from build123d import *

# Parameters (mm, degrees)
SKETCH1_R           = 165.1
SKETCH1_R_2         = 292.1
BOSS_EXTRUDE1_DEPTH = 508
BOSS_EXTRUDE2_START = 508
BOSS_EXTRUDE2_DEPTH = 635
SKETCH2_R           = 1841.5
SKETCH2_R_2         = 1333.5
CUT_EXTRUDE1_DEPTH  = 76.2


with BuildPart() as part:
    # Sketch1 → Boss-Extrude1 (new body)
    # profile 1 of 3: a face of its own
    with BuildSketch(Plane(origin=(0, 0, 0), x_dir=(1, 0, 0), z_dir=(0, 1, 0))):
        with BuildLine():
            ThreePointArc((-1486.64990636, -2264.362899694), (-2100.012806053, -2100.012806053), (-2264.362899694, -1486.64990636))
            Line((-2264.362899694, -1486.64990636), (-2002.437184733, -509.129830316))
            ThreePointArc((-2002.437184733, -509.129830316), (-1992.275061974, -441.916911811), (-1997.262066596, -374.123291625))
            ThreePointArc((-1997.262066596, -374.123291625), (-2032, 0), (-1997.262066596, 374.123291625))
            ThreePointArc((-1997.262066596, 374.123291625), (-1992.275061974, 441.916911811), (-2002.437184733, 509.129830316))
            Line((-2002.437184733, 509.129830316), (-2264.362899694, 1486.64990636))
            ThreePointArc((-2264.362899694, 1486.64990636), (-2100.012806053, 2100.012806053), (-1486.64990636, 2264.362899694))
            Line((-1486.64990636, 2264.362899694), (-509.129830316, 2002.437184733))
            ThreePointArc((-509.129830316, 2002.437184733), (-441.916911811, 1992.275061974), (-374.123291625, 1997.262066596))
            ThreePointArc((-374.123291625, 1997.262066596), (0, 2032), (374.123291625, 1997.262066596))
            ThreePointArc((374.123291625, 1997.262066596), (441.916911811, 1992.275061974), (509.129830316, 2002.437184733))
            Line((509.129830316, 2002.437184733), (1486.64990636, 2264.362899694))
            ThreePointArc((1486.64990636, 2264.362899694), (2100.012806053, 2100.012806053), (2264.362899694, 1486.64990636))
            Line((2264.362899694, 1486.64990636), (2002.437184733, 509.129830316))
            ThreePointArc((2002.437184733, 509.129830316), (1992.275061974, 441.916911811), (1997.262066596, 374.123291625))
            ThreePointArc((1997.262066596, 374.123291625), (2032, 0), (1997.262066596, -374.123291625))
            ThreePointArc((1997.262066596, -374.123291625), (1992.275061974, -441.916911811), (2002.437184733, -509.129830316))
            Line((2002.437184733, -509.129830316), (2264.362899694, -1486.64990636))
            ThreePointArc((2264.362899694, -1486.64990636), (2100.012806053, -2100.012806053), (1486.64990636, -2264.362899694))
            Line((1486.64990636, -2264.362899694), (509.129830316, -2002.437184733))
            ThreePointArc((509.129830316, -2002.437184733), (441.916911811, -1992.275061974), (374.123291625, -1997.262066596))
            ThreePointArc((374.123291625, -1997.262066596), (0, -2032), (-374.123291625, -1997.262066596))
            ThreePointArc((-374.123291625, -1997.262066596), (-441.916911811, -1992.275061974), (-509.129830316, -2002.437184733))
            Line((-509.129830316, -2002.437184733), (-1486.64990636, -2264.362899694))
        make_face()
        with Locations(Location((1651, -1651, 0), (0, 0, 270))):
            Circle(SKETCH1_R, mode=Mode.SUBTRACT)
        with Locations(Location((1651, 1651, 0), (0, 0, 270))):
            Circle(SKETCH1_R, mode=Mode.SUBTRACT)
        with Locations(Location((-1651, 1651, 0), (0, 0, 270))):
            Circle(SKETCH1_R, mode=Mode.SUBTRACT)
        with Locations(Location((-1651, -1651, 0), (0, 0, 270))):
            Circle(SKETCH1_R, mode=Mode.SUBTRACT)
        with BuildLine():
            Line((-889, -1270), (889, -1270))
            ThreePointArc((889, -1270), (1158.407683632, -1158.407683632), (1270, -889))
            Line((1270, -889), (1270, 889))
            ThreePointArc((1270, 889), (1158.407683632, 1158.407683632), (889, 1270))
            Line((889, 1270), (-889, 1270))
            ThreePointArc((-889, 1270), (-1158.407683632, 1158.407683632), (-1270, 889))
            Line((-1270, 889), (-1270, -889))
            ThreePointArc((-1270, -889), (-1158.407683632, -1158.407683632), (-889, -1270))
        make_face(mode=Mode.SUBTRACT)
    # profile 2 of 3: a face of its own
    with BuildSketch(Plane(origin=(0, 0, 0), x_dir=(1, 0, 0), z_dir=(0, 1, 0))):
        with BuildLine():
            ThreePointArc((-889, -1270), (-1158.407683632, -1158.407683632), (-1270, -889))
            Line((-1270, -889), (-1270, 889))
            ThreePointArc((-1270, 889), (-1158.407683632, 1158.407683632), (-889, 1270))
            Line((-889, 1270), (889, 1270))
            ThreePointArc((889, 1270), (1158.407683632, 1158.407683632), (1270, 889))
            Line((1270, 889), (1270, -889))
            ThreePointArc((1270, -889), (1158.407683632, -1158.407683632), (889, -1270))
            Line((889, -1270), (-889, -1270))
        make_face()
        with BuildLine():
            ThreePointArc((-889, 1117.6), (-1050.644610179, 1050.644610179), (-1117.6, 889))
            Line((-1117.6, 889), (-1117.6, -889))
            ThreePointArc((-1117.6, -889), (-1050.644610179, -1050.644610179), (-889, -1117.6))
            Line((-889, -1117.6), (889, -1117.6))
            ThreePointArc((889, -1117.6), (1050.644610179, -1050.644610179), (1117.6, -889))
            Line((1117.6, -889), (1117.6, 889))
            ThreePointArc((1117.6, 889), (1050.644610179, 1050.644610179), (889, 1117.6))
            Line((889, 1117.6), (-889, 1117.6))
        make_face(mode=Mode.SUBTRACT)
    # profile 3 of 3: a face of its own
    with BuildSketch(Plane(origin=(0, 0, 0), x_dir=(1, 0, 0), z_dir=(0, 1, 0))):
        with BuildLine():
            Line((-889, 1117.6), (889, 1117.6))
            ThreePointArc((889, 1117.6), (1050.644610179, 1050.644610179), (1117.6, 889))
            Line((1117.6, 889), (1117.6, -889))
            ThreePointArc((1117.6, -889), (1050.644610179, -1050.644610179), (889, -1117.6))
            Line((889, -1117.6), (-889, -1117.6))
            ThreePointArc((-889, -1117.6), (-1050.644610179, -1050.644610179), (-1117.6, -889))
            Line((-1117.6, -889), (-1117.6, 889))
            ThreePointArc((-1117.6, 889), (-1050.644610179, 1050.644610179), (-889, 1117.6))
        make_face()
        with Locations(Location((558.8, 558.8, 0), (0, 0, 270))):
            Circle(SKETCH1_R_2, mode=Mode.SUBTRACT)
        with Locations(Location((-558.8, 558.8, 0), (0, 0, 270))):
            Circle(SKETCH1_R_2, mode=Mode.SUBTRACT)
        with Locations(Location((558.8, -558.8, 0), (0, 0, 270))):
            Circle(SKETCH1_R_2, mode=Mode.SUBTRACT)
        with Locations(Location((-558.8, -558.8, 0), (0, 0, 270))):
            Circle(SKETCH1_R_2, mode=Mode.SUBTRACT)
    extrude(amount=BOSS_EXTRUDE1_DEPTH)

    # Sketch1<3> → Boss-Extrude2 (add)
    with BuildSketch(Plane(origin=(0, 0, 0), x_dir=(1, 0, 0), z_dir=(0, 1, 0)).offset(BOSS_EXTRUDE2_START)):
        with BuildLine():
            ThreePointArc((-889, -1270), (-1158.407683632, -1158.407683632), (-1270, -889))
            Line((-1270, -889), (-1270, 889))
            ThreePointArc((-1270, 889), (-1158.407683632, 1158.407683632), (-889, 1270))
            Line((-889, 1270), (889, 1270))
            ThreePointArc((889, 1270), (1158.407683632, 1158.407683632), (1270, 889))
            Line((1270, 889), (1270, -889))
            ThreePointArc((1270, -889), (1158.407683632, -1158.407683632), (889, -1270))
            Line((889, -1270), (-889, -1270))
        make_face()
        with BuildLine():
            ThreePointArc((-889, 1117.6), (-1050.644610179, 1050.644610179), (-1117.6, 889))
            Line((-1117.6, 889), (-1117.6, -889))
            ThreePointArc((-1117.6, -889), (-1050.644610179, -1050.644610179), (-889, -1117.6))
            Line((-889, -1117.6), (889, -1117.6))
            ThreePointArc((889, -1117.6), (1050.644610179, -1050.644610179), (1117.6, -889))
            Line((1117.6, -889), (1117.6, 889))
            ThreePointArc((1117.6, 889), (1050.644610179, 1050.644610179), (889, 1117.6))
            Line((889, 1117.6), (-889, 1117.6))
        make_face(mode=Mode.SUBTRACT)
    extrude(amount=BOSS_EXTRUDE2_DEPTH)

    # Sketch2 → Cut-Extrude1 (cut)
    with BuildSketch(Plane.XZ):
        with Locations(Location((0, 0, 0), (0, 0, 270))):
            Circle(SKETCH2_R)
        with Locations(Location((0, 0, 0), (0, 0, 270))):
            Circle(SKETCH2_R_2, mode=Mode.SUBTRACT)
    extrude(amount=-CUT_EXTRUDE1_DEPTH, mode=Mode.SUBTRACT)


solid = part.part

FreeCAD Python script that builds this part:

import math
import FreeCAD as App
import Part
import Sketcher
from FreeCAD import Vector
Q = App.Units.Quantity

doc = App.newDocument("Part")
body = doc.addObject("PartDesign::Body", "Body")

# Sketch on XZ plane
sketch1 = doc.addObject("Sketcher::SketchObject", "Sketch")
body.addObject(sketch1)
sketch1.AttachmentSupport = (doc.XZ_Plane, [""])
sketch1.MapMode = "FlatFace"
sketch1.addGeometry([
    Part.ArcOfCircle(Part.Circle(Vector(-1651, 1651, 0), Vector(0, 0, 1), 635), math.radians(75), math.radians(195)),  # 0
    Part.LineSegment(Vector(-1486.649906, 2264.3629, 0), Vector(-509.12983, 2002.437185, 0)),  # 1
    Part.ArcOfCircle(Part.Circle(Vector(-430.241785, 2296.851377, 0), Vector(0, 0, 1), 304.8), math.radians(-105), math.radians(-79.390414)),  # 2
    Part.ArcOfCircle(Part.Circle(Vector(0, 0, 0), Vector(0, 0, 1), 2032), math.radians(79.390414), math.radians(100.609586)),  # 3
    Part.ArcOfCircle(Part.Circle(Vector(430.241785, 2296.851377, 0), Vector(0, 0, 1), 304.8), math.radians(-100.609586), math.radians(-75)),  # 4
    Part.LineSegment(Vector(509.12983, 2002.437185, 0), Vector(1486.649906, 2264.3629, 0)),  # 5
    Part.ArcOfCircle(Part.Circle(Vector(1651, 1651, 0), Vector(0, 0, 1), 635), math.radians(-15), math.radians(105)),  # 6
    Part.LineSegment(Vector(2264.3629, 1486.649906, 0), Vector(2002.437185, 509.12983, 0)),  # 7
    Part.ArcOfCircle(Part.Circle(Vector(2296.851377, 430.241785, 0), Vector(0, 0, 1), 304.8), math.radians(165), math.radians(190.609586)),  # 8
    Part.ArcOfCircle(Part.Circle(Vector(0, 0, 0), Vector(0, 0, 1), 2032), math.radians(-10.609586), math.radians(10.609586)),  # 9
    Part.ArcOfCircle(Part.Circle(Vector(2296.851377, -430.241785, 0), Vector(0, 0, 1), 304.8), math.radians(169.390414), math.radians(195)),  # 10
    Part.LineSegment(Vector(2002.437185, -509.12983, 0), Vector(2264.3629, -1486.649906, 0)),  # 11
    Part.ArcOfCircle(Part.Circle(Vector(1651, -1651, 0), Vector(0, 0, 1), 635), math.radians(-105), math.radians(15)),  # 12
    Part.LineSegment(Vector(1486.649906, -2264.3629, 0), Vector(509.12983, -2002.437185, 0)),  # 13
    Part.ArcOfCircle(Part.Circle(Vector(430.241785, -2296.851377, 0), Vector(0, 0, 1), 304.8), math.radians(75), math.radians(100.609586)),  # 14
    Part.ArcOfCircle(Part.Circle(Vector(0, 0, 0), Vector(0, 0, 1), 2032), math.radians(-100.609586), math.radians(-79.390414)),  # 15
    Part.ArcOfCircle(Part.Circle(Vector(-430.241785, -2296.851377, 0), Vector(0, 0, 1), 304.8), math.radians(79.390414), math.radians(105)),  # 16
    Part.LineSegment(Vector(-509.12983, -2002.437185, 0), Vector(-1486.649906, -2264.3629, 0)),  # 17
    Part.ArcOfCircle(Part.Circle(Vector(-1651, -1651, 0), Vector(0, 0, 1), 635), math.radians(165), math.radians(285)),  # 18
    Part.LineSegment(Vector(-2264.3629, -1486.649906, 0), Vector(-2002.437185, -509.12983, 0)),  # 19
    Part.ArcOfCircle(Part.Circle(Vector(-2296.851377, -430.241785, 0), Vector(0, 0, 1), 304.8), math.radians(-15), math.radians(10.609586)),  # 20
    Part.ArcOfCircle(Part.Circle(Vector(0, 0, 0), Vector(0, 0, 1), 2032), math.radians(169.390414), math.radians(190.609586)),  # 21
    Part.ArcOfCircle(Part.Circle(Vector(-2296.851377, 430.241785, 0), Vector(0, 0, 1), 304.8), math.radians(-10.609586), math.radians(15)),  # 22
    Part.LineSegment(Vector(-2002.437185, 509.12983, 0), Vector(-2264.3629, 1486.649906, 0)),  # 23
    Part.Circle(Vector(1651, 1651, 0), Vector(0, 0, 1), 165.1),  # 24
    Part.Circle(Vector(-1651, 1651, 0), Vector(0, 0, 1), 165.1),  # 25
    Part.Circle(Vector(1651, -1651, 0), Vector(0, 0, 1), 165.1),  # 26
    Part.Circle(Vector(-1651, -1651, 0), Vector(0, 0, 1), 165.1),  # 27
    Part.Circle(Vector(558.8, -558.8, 0), Vector(0, 0, 1), 292.1),  # 28
    Part.Circle(Vector(-558.8, -558.8, 0), Vector(0, 0, 1), 292.1),  # 29
    Part.Circle(Vector(558.8, 558.8, 0), Vector(0, 0, 1), 292.1),  # 30
    Part.Circle(Vector(-558.8, 558.8, 0), Vector(0, 0, 1), 292.1),  # 31
], False)
sketch1.addConstraint([
    Sketcher.Constraint("Tangent", 0, 1, 1, 1),
    Sketcher.Constraint("Tangent", 1, 2, 2, 1),
    Sketcher.Constraint("Tangent", 2, 2, 3, 2),
    Sketcher.Constraint("Tangent", 3, 1, 4, 1),
    Sketcher.Constraint("Tangent", 4, 2, 5, 1),
    Sketcher.Constraint("Tangent", 5, 2, 6, 2),
    Sketcher.Constraint("Tangent", 6, 1, 7, 1),
    Sketcher.Constraint("Tangent", 7, 2, 8, 1),
    Sketcher.Constraint("Tangent", 8, 2, 9, 2),
    Sketcher.Constraint("Tangent", 9, 1, 10, 1),
    Sketcher.Constraint("Tangent", 10, 2, 11, 1),
    Sketcher.Constraint("Tangent", 11, 2, 12, 2),
    Sketcher.Constraint("Tangent", 12, 1, 13, 1),
    Sketcher.Constraint("Tangent", 13, 2, 14, 1),
    Sketcher.Constraint("Tangent", 14, 2, 15, 2),
    Sketcher.Constraint("Tangent", 15, 1, 16, 1),
    Sketcher.Constraint("Tangent", 16, 2, 17, 1),
    Sketcher.Constraint("Tangent", 17, 2, 18, 2),
    Sketcher.Constraint("Tangent", 18, 1, 19, 1),
    Sketcher.Constraint("Tangent", 19, 2, 20, 1),
    Sketcher.Constraint("Tangent", 20, 2, 21, 2),
    Sketcher.Constraint("Tangent", 21, 1, 22, 1),
    Sketcher.Constraint("Tangent", 22, 2, 23, 1),
    Sketcher.Constraint("Tangent", 23, 2, 0, 2),
    Sketcher.Constraint("Coincident", 3, 3, -1, 1),
    Sketcher.Constraint("Coincident", 9, 3, -1, 1),
    Sketcher.Constraint("Coincident", 15, 3, -1, 1),
    Sketcher.Constraint("Coincident", 21, 3, -1, 1),
    Sketcher.Constraint("Coincident", 24, 3, 6, 3),
    Sketcher.Constraint("Coincident", 25, 3, 0, 3),
    Sketcher.Constraint("Coincident", 26, 3, 12, 3),
    Sketcher.Constraint("Coincident", 27, 3, 18, 3),
    Sketcher.Constraint("Equal", 2, 4),
    Sketcher.Constraint("Equal", 0, 6),
    Sketcher.Constraint("Equal", 4, 8),
    Sketcher.Constraint("Equal", 3, 9),
    Sketcher.Constraint("Equal", 8, 10),
    Sketcher.Constraint("Equal", 6, 12),
    Sketcher.Constraint("Equal", 10, 14),
    Sketcher.Constraint("Equal", 9, 15),
    Sketcher.Constraint("Equal", 14, 16),
    Sketcher.Constraint("Equal", 12, 18),
    Sketcher.Constraint("Equal", 16, 20),
    Sketcher.Constraint("Equal", 15, 21),
    Sketcher.Constraint("Equal", 20, 22),
    Sketcher.Constraint("Equal", 24, 25),
    Sketcher.Constraint("Equal", 25, 26),
    Sketcher.Constraint("Equal", 26, 27),
    Sketcher.Constraint("Equal", 28, 29),
    Sketcher.Constraint("Equal", 29, 30),
    Sketcher.Constraint("Equal", 30, 31),
    Sketcher.Constraint("Symmetric", 0, 3, 12, 3, -1, 1),
    Sketcher.Constraint("Symmetric", 6, 3, 18, 3, -1, 1),
    Sketcher.Constraint("Symmetric", 29, 3, 30, 3, -1, 1),
    Sketcher.Constraint("Symmetric", 28, 3, 31, 3, -1, 1),
    Sketcher.Constraint("Symmetric", 0, 3, 6, 3, -2),
    Sketcher.Constraint("Symmetric", 28, 3, 29, 3, -2),
    Sketcher.Constraint("Perpendicular", 1, 7),
    Sketcher.Constraint("Perpendicular", 5, 11),
    Sketcher.Constraint("Perpendicular", 7, 13),
    Sketcher.Constraint("Perpendicular", 11, 17),
    Sketcher.Constraint("Perpendicular", 13, 19),
    Sketcher.Constraint("Perpendicular", 17, 23),
    Sketcher.Constraint("Horizontal", 2, 3, 4, 3),
    Sketcher.Constraint("Equal", 5, 7),
    Sketcher.Constraint("Diameter", 24, Q("13 in")),
    Sketcher.Constraint("Diameter", 28, Q("23 in")),
    Sketcher.Constraint("Radius", 0, Q("25 in")),
    Sketcher.Constraint("Radius", 2, Q("12 in")),
    Sketcher.Constraint("Radius", 3, Q("80 in")),
    Sketcher.Constraint("DistanceX", 0, 3, -1, 1, Q("65 in")),
    Sketcher.Constraint("DistanceX", -1, 1, 28, 3, Q("22 in")),
    Sketcher.Constraint("DistanceY", 28, 3, -1, 1, Q("22 in")),
    Sketcher.Constraint("Angle", 1, Q("-15 deg")),
])
pad1 = doc.addObject("PartDesign::Pad", "Pad")
body.addObject(pad1)
pad1.Profile = sketch1
pad1.Length = Q("20 in")
pad1.Reversed = True

# Sketch on XZ plane
sketch2 = doc.addObject("Sketcher::SketchObject", "Sketch001")
body.addObject(sketch2)
sketch2.AttachmentSupport = (doc.XZ_Plane, [""])
sketch2.MapMode = "FlatFace"
sketch2.AttachmentOffset = App.Placement(Vector(0, 0, -20 * 25.4), App.Rotation())
sketch2.addGeometry([
    Part.ArcOfCircle(Part.Circle(Vector(-889, 889, 0), Vector(0, 0, 1), 381), math.radians(90), math.radians(180)),  # 0
    Part.LineSegment(Vector(-889, 1270, 0), Vector(889, 1270, 0)),  # 1
    Part.ArcOfCircle(Part.Circle(Vector(889, 889, 0), Vector(0, 0, 1), 381), math.radians(0), math.radians(90)),  # 2
    Part.LineSegment(Vector(1270, 889, 0), Vector(1270, -889, 0)),  # 3
    Part.ArcOfCircle(Part.Circle(Vector(889, -889, 0), Vector(0, 0, 1), 381), math.radians(-90), math.radians(0)),  # 4
    Part.LineSegment(Vector(889, -1270, 0), Vector(-889, -1270, 0)),  # 5
    Part.ArcOfCircle(Part.Circle(Vector(-889, -889, 0), Vector(0, 0, 1), 381), math.radians(180), math.radians(270)),  # 6
    Part.LineSegment(Vector(-1270, -889, 0), Vector(-1270, 889, 0)),  # 7
    Part.LineSegment(Vector(-889, -1117.6, 0), Vector(889, -1117.6, 0)),  # 8
    Part.ArcOfCircle(Part.Circle(Vector(889, -889, 0), Vector(0, 0, 1), 228.6), math.radians(-90), math.radians(0)),  # 9
    Part.LineSegment(Vector(1117.6, -889, 0), Vector(1117.6, 889, 0)),  # 10
    Part.ArcOfCircle(Part.Circle(Vector(889, 889, 0), Vector(0, 0, 1), 228.6), math.radians(0), math.radians(90)),  # 11
    Part.LineSegment(Vector(889, 1117.6, 0), Vector(-889, 1117.6, 0)),  # 12
    Part.ArcOfCircle(Part.Circle(Vector(-889, 889, 0), Vector(0, 0, 1), 228.6), math.radians(90), math.radians(180)),  # 13
    Part.LineSegment(Vector(-1117.6, 889, 0), Vector(-1117.6, -889, 0)),  # 14
    Part.ArcOfCircle(Part.Circle(Vector(-889, -889, 0), Vector(0, 0, 1), 228.6), math.radians(-180), math.radians(-90)),  # 15
], False)
sketch2.addConstraint([
    Sketcher.Constraint("Tangent", 0, 1, 1, 1),
    Sketcher.Constraint("Tangent", 1, 2, 2, 2),
    Sketcher.Constraint("Tangent", 2, 1, 3, 1),
    Sketcher.Constraint("Tangent", 3, 2, 4, 2),
    Sketcher.Constraint("Tangent", 4, 1, 5, 1),
    Sketcher.Constraint("Tangent", 5, 2, 6, 2),
    Sketcher.Constraint("Tangent", 6, 1, 7, 1),
    Sketcher.Constraint("Tangent", 7, 2, 0, 2),
    Sketcher.Constraint("Tangent", 8, 2, 9, 1),
    Sketcher.Constraint("Tangent", 9, 2, 10, 1),
    Sketcher.Constraint("Tangent", 10, 2, 11, 1),
    Sketcher.Constraint("Tangent", 11, 2, 12, 1),
    Sketcher.Constraint("Tangent", 12, 2, 13, 1),
    Sketcher.Constraint("Tangent", 13, 2, 14, 1),
    Sketcher.Constraint("Tangent", 14, 2, 15, 1),
    Sketcher.Constraint("Tangent", 15, 2, 8, 1),
    Sketcher.Constraint("Horizontal", 1),
    Sketcher.Constraint("Vertical", 3),
    Sketcher.Constraint("Horizontal", 5),
    Sketcher.Constraint("Vertical", 7),
    Sketcher.Constraint("Horizontal", 8),
    Sketcher.Constraint("Vertical", 10),
    Sketcher.Constraint("Horizontal", 12),
    Sketcher.Constraint("Vertical", 14),
    Sketcher.Constraint("Coincident", 9, 3, 4, 3),
    Sketcher.Constraint("Coincident", 11, 3, 2, 3),
    Sketcher.Constraint("Coincident", 13, 3, 0, 3),
    Sketcher.Constraint("Equal", 0, 2),
    Sketcher.Constraint("Equal", 2, 4),
    Sketcher.Constraint("Equal", 4, 6),
    Sketcher.Constraint("Equal", 13, 15),
    Sketcher.Constraint("Symmetric", 0, 3, 4, 3, -1, 1),
    Sketcher.Constraint("Equal", 12, 3),
    Sketcher.Constraint("Radius", 0, Q("15 in")),
    Sketcher.Constraint("Radius", 9, Q("9 in")),
    Sketcher.Constraint("DistanceX", 1, 1, 1, 2, Q("70 in")),
])
pad2 = doc.addObject("PartDesign::Pad", "Pad001")
body.addObject(pad2)
pad2.Profile = sketch2
pad2.Length = Q("25 in")
pad2.Reversed = True

# Sketch on XZ plane
sketch3 = doc.addObject("Sketcher::SketchObject", "Sketch002")
body.addObject(sketch3)
sketch3.AttachmentSupport = (doc.XZ_Plane, [""])
sketch3.MapMode = "FlatFace"
sketch3.addGeometry([
    Part.Circle(Vector(0, 0, 0), Vector(0, 0, 1), 1841.5),
    Part.Circle(Vector(0, 0, 0), Vector(0, 0, 1), 1333.5),
], False)
sketch3.addConstraint([
    Sketcher.Constraint("Coincident", 0, 3, -1, 1),
    Sketcher.Constraint("Coincident", 1, 3, -1, 1),
    Sketcher.Constraint("Diameter", 0, Q("145 in")),
    Sketcher.Constraint("Diameter", 1, Q("105 in")),
])
pocket1 = doc.addObject("PartDesign::Pocket", "Pocket")
body.addObject(pocket1)
pocket1.Profile = sketch3
pocket1.Length = Q("3 in")

doc.recompute()
